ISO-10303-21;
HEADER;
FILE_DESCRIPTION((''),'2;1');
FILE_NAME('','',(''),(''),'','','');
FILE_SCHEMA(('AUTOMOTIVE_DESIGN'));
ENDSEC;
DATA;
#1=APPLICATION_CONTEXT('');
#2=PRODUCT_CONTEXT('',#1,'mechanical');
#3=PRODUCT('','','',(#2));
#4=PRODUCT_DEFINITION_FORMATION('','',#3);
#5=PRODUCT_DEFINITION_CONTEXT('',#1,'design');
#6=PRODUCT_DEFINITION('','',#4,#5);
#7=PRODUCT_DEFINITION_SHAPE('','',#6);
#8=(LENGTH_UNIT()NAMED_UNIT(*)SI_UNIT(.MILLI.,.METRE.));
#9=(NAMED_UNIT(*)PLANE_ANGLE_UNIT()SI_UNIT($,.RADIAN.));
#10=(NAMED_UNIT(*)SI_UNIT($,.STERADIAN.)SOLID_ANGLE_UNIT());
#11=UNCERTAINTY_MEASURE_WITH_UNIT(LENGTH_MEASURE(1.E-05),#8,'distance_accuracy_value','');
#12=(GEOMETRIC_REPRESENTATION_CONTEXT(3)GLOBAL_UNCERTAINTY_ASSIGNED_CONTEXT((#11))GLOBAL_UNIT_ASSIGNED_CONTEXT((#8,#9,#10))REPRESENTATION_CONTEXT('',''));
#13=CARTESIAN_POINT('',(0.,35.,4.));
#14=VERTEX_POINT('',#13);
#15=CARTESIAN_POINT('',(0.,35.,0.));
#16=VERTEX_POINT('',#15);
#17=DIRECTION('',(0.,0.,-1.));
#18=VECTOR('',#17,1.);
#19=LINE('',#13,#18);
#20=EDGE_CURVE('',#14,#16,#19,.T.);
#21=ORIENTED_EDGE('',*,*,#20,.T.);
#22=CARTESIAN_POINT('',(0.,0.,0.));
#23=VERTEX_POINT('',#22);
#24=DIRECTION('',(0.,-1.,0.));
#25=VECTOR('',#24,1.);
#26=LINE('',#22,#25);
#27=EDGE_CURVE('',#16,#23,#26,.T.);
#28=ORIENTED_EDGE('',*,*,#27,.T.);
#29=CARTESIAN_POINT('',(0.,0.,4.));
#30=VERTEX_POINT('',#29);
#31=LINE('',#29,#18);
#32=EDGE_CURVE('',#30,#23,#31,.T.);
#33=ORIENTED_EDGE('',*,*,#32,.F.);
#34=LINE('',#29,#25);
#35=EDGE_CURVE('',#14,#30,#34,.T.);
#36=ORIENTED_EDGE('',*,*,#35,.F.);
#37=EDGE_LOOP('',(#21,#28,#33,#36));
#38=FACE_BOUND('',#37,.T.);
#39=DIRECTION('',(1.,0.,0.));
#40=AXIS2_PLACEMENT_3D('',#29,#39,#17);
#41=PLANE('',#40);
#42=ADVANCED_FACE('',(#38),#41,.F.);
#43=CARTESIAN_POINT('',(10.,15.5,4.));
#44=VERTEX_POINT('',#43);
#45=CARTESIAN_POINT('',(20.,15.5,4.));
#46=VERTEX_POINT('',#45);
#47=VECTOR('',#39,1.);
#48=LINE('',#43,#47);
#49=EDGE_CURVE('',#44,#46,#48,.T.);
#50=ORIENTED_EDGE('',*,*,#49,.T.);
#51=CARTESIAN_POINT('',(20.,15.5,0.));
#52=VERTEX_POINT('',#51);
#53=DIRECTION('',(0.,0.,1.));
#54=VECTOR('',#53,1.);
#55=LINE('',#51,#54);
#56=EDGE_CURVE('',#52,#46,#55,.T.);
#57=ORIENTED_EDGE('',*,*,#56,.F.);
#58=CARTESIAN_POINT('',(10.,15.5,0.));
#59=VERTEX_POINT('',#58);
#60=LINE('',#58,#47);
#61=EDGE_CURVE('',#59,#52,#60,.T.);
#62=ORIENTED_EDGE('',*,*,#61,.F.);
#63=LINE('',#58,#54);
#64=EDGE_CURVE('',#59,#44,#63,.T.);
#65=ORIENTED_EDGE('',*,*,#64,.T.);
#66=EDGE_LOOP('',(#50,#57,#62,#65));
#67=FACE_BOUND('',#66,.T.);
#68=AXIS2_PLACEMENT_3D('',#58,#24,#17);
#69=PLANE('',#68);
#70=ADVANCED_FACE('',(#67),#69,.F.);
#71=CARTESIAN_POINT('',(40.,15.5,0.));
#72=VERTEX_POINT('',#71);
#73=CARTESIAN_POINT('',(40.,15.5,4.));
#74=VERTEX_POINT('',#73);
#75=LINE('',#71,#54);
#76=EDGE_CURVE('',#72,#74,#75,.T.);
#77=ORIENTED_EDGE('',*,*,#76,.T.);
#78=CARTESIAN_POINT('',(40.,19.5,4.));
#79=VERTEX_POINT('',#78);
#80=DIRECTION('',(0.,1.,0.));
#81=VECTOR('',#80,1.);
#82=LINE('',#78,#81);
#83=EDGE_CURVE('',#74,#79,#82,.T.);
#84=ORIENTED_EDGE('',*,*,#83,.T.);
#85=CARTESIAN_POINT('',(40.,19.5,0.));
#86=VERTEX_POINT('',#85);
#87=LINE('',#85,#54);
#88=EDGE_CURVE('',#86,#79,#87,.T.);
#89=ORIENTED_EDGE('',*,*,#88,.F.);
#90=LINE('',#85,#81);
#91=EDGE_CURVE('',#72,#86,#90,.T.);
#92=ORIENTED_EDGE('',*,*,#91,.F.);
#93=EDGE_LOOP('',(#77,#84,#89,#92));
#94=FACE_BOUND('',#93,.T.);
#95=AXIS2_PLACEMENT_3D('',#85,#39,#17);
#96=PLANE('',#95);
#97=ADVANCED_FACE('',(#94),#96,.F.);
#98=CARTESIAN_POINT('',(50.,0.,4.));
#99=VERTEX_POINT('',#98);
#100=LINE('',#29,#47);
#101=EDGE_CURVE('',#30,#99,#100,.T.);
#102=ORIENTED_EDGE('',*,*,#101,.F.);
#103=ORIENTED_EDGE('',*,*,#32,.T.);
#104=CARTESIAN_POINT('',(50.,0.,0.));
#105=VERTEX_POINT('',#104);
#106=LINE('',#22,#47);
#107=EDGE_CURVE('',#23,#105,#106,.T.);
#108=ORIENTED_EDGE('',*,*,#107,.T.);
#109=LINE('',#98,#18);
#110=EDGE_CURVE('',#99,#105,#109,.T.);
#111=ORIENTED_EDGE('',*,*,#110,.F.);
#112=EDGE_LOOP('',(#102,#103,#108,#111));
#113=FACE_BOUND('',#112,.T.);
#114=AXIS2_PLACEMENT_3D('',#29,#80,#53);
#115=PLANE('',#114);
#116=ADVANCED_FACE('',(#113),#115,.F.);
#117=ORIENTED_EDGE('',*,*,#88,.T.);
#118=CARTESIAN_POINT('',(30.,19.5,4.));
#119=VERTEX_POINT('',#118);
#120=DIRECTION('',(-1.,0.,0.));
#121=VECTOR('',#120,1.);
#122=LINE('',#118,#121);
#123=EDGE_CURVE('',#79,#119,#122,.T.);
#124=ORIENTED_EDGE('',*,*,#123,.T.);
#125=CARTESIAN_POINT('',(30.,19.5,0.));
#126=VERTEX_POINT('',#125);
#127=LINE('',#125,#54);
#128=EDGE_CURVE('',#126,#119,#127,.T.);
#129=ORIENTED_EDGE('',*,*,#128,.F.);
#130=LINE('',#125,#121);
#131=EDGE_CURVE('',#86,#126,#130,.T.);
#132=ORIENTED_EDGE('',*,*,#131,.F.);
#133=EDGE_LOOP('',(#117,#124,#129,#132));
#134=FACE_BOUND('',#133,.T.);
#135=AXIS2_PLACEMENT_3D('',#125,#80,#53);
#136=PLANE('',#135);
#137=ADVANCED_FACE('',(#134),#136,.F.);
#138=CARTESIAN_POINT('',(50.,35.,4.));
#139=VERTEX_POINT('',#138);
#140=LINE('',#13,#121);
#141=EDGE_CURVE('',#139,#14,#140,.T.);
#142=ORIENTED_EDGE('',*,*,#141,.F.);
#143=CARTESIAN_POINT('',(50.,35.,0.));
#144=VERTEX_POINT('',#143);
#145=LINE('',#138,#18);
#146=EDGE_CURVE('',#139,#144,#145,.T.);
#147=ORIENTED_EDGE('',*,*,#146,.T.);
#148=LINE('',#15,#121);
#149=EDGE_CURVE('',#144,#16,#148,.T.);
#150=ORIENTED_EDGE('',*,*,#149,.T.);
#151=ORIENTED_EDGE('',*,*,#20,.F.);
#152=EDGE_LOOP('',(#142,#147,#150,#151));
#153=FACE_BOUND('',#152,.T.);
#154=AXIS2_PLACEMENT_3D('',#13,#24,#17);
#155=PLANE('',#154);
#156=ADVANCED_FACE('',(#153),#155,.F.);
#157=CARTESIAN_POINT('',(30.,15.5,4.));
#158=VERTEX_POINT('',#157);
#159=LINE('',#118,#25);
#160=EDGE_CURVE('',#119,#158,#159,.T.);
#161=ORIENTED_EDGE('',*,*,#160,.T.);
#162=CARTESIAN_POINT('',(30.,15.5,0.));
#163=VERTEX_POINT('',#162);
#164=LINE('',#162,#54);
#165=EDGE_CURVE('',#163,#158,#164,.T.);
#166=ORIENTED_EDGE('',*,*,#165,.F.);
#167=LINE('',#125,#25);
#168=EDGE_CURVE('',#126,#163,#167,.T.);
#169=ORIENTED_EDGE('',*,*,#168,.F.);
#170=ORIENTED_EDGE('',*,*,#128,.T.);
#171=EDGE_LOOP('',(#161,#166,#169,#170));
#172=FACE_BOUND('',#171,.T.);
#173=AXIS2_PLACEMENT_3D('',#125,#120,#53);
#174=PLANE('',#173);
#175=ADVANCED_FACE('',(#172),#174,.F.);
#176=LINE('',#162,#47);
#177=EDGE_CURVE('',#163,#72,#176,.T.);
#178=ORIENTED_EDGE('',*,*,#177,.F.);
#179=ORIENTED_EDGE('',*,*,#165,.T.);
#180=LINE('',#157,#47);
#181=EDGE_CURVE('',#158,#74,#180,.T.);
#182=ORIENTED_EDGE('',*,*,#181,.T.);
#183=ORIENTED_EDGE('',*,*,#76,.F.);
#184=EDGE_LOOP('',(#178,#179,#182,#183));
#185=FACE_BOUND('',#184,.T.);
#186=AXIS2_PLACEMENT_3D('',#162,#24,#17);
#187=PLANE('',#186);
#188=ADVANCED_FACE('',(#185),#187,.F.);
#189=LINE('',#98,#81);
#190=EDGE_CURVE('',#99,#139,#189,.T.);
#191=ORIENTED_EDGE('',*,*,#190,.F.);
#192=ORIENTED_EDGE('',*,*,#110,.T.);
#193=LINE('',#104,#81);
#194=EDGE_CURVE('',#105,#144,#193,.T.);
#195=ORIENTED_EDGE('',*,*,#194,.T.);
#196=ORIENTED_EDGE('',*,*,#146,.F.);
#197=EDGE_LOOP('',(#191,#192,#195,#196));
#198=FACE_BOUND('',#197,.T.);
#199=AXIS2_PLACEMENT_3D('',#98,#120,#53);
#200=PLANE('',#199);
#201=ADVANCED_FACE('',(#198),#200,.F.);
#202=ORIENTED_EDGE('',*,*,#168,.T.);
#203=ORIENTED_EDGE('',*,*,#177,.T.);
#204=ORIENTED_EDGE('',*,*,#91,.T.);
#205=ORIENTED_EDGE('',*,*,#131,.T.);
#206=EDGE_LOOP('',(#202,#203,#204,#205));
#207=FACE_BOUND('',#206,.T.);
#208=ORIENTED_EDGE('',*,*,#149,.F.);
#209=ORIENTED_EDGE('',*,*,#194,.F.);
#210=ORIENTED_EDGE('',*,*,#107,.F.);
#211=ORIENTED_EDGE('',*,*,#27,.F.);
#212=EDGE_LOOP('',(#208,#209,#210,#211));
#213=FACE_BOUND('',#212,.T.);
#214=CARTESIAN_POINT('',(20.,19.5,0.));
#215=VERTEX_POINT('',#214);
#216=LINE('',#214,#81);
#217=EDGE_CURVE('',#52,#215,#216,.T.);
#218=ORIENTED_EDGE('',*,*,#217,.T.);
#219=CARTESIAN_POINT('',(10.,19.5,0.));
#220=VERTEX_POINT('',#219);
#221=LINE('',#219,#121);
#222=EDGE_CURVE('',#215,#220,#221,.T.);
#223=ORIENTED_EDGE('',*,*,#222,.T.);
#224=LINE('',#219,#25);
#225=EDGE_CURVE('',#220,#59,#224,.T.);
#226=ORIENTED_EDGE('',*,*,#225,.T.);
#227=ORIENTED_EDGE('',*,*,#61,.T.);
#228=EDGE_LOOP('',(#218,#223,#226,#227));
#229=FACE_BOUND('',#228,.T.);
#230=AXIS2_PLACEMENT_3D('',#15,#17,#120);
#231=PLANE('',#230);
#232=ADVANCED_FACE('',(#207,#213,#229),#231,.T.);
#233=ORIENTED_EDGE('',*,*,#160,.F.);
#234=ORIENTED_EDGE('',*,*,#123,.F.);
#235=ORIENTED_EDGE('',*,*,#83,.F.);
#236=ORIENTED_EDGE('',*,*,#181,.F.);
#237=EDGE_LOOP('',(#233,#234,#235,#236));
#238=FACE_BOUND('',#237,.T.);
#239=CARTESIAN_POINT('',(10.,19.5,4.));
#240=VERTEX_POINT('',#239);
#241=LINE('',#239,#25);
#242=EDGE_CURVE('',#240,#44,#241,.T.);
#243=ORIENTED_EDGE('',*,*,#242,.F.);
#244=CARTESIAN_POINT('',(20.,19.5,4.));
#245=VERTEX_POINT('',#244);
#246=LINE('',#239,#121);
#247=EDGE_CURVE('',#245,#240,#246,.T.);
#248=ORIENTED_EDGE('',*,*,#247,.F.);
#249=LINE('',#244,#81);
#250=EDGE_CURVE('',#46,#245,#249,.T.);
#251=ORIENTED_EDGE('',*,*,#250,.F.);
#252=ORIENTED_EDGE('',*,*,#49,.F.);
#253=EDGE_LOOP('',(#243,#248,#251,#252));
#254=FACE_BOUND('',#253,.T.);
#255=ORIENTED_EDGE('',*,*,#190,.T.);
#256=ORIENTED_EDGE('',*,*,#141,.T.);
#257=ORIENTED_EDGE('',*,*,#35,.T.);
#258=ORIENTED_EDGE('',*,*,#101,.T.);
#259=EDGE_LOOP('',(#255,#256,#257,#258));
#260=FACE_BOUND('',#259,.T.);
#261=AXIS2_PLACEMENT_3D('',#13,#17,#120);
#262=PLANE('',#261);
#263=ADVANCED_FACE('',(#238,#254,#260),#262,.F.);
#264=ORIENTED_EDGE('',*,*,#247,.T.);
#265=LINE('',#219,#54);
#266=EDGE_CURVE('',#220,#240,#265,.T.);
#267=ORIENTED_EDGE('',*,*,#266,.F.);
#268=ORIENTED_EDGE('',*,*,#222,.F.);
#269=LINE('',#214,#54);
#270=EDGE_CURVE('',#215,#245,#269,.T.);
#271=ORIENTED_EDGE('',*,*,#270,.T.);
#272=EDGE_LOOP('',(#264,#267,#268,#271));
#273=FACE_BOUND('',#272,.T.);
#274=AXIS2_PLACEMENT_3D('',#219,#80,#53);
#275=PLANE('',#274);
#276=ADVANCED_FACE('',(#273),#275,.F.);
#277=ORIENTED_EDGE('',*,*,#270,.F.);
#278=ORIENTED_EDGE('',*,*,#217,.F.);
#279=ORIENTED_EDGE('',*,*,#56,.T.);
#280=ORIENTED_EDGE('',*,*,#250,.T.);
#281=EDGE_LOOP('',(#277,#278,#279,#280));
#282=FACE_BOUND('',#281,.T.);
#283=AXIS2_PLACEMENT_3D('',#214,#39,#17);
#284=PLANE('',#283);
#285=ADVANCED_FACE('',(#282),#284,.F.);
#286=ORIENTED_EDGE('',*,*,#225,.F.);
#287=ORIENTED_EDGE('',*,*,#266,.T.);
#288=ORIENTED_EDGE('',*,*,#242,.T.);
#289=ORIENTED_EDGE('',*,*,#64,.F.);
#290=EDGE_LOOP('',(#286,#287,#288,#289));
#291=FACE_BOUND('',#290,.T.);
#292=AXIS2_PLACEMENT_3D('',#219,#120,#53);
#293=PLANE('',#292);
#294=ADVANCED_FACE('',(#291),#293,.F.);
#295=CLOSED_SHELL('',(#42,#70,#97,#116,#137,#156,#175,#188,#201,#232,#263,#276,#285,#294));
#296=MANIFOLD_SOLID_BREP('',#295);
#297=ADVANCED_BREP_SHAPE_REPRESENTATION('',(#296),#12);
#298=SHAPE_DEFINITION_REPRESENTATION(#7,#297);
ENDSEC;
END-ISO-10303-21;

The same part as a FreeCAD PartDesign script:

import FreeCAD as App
import Part
import Sketcher
from FreeCAD import Vector


def add_polygon(sketch, points):
    """Adds a closed chain of lines whose ends are joined by coincident constraints."""
    first, n = sketch.GeometryCount, len(points)
    for a, b in zip(points, points[1:] + points[:1]):
        sketch.addGeometry(Part.LineSegment(App.Vector(*a, 0), App.Vector(*b, 0)), False)
    for i in range(n):
        sketch.addConstraint(Sketcher.Constraint("Coincident", first + i, 2, first + (i + 1) % n, 1))

doc = App.newDocument("Part")
body = doc.addObject("PartDesign::Body", "Body")

# Sketch on XY plane
sketch1 = body.newObject("Sketcher::SketchObject", "Sketch")
sketch1.AttachmentSupport = (doc.getObject("XY_Plane"), [""])
sketch1.MapMode = "FlatFace"
add_polygon(sketch1, [(0, 35), (0, 0), (50, 0), (50, 35)])  # lines 0-3
sketch1.addConstraint(Sketcher.Constraint("Vertical", 0))
sketch1.addConstraint(Sketcher.Constraint("Horizontal", 1))
sketch1.addConstraint(Sketcher.Constraint("Vertical", 2))
sketch1.addConstraint(Sketcher.Constraint("Horizontal", 3))
sketch1.addConstraint(Sketcher.Constraint("Coincident", 0, 2, -1, 1))
sketch1.addConstraint(Sketcher.Constraint("DistanceX", 1, 1, 1, 2, 50.0))
sketch1.addConstraint(Sketcher.Constraint("DistanceY", 0, 2, 0, 1, 35.0))
pad1 = body.newObject("PartDesign::Pad", "Pad")
pad1.Profile = sketch1
pad1.Length = 4

# Sketch on XY plane
sketch2 = body.newObject("Sketcher::SketchObject", "Sketch001")
sketch2.AttachmentSupport = (doc.getObject("XY_Plane"), [""])
sketch2.MapMode = "FlatFace"
sketch2.AttachmentOffset = App.Placement(Vector(0, 0, 4), App.Rotation())
add_polygon(sketch2, [(10, 19.5), (10, 15.5), (20, 15.5), (20, 19.5)])  # lines 0-3
add_polygon(sketch2, [(30, 19.5), (30, 15.5), (40, 15.5), (40, 19.5)])  # lines 4-7
sketch2.addConstraint(Sketcher.Constraint("Vertical", 0))
sketch2.addConstraint(Sketcher.Constraint("Horizontal", 1))
sketch2.addConstraint(Sketcher.Constraint("Vertical", 2))
sketch2.addConstraint(Sketcher.Constraint("Horizontal", 3))
sketch2.addConstraint(Sketcher.Constraint("Vertical", 4))
sketch2.addConstraint(Sketcher.Constraint("Horizontal", 5))
sketch2.addConstraint(Sketcher.Constraint("Vertical", 6))
sketch2.addConstraint(Sketcher.Constraint("Horizontal", 7))
sketch2.addConstraint(Sketcher.Constraint("Horizontal", 1, 2, 4, 2))
sketch2.addConstraint(Sketcher.Constraint("Horizontal", 3, 2, 6, 2))
sketch2.addConstraint(Sketcher.Constraint("Equal", 3, 5))
sketch2.addConstraint(Sketcher.Constraint("DistanceX", 1, 1, 1, 2, 10.0))
sketch2.addConstraint(Sketcher.Constraint("DistanceY", 0, 2, 0, 1, 4.0))
sketch2.addConstraint(Sketcher.Constraint("DistanceX", -1, 1, 0, 2, 10.0))
sketch2.addConstraint(Sketcher.Constraint("DistanceX", -1, 1, 4, 2, 30.0))
sketch2.addConstraint(Sketcher.Constraint("DistanceY", -1, 1, 0, 2, 15.5))
pocket1 = body.newObject("PartDesign::Pocket", "Pocket")
pocket1.Profile = sketch2
pocket1.Length = 4

doc.recompute()
